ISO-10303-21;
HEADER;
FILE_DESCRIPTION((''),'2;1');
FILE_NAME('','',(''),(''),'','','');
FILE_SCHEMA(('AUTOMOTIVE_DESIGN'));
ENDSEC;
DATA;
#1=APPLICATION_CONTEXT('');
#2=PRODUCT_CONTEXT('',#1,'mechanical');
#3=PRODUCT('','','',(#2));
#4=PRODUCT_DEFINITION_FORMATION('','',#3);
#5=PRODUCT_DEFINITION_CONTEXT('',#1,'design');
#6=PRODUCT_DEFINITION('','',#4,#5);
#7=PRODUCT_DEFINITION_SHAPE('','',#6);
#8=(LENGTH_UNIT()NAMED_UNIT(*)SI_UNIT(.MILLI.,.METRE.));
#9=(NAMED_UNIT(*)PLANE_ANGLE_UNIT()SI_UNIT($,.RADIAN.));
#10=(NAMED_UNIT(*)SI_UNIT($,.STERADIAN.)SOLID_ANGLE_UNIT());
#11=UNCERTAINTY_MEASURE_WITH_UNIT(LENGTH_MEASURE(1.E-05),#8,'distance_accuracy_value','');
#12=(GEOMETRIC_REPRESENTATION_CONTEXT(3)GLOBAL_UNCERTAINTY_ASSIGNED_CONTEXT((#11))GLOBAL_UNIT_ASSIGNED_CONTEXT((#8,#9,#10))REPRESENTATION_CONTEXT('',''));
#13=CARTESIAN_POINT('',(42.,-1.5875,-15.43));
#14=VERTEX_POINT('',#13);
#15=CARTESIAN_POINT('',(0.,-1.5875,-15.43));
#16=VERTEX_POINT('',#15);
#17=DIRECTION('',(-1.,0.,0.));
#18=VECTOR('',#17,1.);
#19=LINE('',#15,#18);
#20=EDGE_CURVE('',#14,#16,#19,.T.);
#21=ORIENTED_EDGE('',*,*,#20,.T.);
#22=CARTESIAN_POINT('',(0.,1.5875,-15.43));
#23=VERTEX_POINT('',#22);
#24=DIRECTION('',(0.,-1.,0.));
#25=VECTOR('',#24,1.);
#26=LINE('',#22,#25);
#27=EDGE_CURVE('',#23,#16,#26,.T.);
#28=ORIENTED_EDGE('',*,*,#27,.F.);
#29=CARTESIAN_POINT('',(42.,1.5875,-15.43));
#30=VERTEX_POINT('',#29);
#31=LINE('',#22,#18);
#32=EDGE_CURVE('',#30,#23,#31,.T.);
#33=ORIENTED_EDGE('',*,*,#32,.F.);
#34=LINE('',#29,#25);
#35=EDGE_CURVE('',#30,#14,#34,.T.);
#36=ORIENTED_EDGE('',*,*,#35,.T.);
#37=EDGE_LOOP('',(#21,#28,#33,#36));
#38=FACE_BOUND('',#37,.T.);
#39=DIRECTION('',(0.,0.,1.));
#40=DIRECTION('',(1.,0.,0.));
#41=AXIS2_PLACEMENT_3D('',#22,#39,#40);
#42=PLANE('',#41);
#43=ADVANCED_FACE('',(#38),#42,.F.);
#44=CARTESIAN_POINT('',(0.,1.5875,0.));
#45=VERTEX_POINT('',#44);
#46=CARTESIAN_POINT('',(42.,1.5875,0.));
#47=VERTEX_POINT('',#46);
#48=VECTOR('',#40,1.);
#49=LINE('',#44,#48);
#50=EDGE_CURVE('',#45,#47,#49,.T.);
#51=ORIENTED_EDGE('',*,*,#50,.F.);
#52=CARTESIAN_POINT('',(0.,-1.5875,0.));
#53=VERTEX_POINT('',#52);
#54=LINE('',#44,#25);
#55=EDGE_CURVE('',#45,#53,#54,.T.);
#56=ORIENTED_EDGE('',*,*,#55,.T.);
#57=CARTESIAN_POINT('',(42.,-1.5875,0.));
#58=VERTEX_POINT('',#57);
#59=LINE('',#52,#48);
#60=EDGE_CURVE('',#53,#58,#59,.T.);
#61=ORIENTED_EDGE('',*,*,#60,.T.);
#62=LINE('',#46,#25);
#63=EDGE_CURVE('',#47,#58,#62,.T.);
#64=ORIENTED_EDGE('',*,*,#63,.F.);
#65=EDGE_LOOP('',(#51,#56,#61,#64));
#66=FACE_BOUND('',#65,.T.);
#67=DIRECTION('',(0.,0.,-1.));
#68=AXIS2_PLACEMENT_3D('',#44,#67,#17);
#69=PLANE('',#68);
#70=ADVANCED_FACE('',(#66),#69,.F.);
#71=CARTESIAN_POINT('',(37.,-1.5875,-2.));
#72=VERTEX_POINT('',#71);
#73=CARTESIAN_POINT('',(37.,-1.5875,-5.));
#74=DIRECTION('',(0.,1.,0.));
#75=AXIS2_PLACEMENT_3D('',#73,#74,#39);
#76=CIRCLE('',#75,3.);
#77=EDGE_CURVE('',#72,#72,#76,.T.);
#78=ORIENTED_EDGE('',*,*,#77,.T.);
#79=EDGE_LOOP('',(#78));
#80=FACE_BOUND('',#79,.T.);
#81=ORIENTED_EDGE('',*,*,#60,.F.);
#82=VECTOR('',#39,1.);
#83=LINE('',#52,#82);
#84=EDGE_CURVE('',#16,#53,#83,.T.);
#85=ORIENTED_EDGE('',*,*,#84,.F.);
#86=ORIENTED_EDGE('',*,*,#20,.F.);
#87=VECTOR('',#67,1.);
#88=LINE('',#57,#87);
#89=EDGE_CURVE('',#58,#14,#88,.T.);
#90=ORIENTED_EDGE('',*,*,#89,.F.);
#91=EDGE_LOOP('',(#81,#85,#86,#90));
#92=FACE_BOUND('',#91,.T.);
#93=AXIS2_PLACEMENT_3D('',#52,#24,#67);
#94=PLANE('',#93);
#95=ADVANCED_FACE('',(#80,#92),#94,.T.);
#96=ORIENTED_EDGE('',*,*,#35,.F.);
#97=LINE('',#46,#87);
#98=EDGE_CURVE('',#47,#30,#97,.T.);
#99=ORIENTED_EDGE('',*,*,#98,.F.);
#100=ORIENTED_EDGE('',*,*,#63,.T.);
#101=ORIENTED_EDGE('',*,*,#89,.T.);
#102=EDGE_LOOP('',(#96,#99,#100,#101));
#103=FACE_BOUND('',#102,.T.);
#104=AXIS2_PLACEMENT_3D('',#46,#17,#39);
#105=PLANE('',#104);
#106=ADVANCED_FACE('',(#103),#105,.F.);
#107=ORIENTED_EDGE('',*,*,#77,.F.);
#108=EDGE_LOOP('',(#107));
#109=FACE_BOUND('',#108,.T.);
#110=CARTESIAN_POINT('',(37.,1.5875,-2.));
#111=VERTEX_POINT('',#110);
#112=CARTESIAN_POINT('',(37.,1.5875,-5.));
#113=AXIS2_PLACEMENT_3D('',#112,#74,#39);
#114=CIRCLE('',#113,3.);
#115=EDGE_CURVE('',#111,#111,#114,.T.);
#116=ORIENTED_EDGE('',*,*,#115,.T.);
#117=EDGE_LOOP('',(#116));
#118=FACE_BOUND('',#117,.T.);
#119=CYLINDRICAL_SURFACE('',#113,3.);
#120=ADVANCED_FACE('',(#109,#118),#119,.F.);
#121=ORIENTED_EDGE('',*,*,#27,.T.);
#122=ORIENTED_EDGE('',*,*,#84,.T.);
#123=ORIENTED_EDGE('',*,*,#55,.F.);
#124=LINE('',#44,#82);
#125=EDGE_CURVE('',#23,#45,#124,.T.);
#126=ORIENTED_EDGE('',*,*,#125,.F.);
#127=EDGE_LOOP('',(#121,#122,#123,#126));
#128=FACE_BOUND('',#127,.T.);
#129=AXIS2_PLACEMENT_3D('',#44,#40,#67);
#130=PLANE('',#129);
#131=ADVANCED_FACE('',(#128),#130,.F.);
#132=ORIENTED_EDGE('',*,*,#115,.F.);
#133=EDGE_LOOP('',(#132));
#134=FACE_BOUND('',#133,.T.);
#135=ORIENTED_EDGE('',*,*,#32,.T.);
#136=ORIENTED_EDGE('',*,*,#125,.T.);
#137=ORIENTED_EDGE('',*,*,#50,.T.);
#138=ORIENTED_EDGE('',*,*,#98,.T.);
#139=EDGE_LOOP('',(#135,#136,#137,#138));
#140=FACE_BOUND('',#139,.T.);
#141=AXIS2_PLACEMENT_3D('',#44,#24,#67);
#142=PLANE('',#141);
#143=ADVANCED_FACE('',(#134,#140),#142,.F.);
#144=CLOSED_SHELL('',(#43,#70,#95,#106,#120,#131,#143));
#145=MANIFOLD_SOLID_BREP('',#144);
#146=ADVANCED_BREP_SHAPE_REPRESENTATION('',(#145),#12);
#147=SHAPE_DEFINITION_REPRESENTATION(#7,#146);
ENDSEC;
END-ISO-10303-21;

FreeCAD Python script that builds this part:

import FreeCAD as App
import Part
import Sketcher

V = App.Vector


def add_polygon(sketch, points):
    """Adds a closed chain of lines whose ends are joined by coincident constraints."""
    first, n = sketch.GeometryCount, len(points)
    for a, b in zip(points, points[1:] + points[:1]):
        sketch.addGeometry(Part.LineSegment(App.Vector(*a, 0), App.Vector(*b, 0)), False)
    for i in range(n):
        sketch.addConstraint(Sketcher.Constraint("Coincident", first + i, 2, first + (i + 1) % n, 1))

doc = App.newDocument("Part")
body = doc.addObject("PartDesign::Body", "Body")

sketch1 = body.newObject("Sketcher::SketchObject", "Sketch")
sketch1.AttachmentSupport = (doc.getObject("XZ_Plane"), [""])
sketch1.MapMode = "FlatFace"
add_polygon(sketch1, [(0, -15), (0, 0), (42, 0), (42, -15)])
sketch1.addConstraint([
    Sketcher.Constraint("Vertical", 0),
    Sketcher.Constraint("Horizontal", 1),
    Sketcher.Constraint("Vertical", 2),
    Sketcher.Constraint("Horizontal", 3),
    Sketcher.Constraint("Coincident", 0, 2, -1, 1),
    Sketcher.Constraint("DistanceX", 1, 1, 1, 2, 42.0),
    Sketcher.Constraint("DistanceY", 0, 1, 0, 2, 15.43),
])
pad1 = body.newObject("PartDesign::Pad", "Pad")
pad1.Profile = sketch1
pad1.Length = 3.175
pad1.Midplane = True

sketch2 = body.newObject("Sketcher::SketchObject", "Sketch001")
sketch2.AttachmentSupport = (doc.getObject("XZ_Plane"), [""])
sketch2.MapMode = "FlatFace"
sketch2.AttachmentOffset = App.Placement(V(0, 0, -1.5875), App.Rotation())
sketch2.addGeometry(Part.Circle(V(37, -5, 0), V(0, 0, 1), 3), False)
sketch2.addConstraint([
    Sketcher.Constraint("Diameter", 0, 6.0),
    Sketcher.Constraint("DistanceX", -1, 1, 0, 3, 37.0),
    Sketcher.Constraint("DistanceY", 0, 3, -1, 1, 5.0),
])
doc.recompute()
hole = body.newObject("PartDesign::Hole", "Hole")
hole.Profile = sketch2
hole.ThreadType = "None"
hole.Diameter = 6
hole.DepthType = "ThroughAll"
hole.Reversed = True

doc.recompute()
